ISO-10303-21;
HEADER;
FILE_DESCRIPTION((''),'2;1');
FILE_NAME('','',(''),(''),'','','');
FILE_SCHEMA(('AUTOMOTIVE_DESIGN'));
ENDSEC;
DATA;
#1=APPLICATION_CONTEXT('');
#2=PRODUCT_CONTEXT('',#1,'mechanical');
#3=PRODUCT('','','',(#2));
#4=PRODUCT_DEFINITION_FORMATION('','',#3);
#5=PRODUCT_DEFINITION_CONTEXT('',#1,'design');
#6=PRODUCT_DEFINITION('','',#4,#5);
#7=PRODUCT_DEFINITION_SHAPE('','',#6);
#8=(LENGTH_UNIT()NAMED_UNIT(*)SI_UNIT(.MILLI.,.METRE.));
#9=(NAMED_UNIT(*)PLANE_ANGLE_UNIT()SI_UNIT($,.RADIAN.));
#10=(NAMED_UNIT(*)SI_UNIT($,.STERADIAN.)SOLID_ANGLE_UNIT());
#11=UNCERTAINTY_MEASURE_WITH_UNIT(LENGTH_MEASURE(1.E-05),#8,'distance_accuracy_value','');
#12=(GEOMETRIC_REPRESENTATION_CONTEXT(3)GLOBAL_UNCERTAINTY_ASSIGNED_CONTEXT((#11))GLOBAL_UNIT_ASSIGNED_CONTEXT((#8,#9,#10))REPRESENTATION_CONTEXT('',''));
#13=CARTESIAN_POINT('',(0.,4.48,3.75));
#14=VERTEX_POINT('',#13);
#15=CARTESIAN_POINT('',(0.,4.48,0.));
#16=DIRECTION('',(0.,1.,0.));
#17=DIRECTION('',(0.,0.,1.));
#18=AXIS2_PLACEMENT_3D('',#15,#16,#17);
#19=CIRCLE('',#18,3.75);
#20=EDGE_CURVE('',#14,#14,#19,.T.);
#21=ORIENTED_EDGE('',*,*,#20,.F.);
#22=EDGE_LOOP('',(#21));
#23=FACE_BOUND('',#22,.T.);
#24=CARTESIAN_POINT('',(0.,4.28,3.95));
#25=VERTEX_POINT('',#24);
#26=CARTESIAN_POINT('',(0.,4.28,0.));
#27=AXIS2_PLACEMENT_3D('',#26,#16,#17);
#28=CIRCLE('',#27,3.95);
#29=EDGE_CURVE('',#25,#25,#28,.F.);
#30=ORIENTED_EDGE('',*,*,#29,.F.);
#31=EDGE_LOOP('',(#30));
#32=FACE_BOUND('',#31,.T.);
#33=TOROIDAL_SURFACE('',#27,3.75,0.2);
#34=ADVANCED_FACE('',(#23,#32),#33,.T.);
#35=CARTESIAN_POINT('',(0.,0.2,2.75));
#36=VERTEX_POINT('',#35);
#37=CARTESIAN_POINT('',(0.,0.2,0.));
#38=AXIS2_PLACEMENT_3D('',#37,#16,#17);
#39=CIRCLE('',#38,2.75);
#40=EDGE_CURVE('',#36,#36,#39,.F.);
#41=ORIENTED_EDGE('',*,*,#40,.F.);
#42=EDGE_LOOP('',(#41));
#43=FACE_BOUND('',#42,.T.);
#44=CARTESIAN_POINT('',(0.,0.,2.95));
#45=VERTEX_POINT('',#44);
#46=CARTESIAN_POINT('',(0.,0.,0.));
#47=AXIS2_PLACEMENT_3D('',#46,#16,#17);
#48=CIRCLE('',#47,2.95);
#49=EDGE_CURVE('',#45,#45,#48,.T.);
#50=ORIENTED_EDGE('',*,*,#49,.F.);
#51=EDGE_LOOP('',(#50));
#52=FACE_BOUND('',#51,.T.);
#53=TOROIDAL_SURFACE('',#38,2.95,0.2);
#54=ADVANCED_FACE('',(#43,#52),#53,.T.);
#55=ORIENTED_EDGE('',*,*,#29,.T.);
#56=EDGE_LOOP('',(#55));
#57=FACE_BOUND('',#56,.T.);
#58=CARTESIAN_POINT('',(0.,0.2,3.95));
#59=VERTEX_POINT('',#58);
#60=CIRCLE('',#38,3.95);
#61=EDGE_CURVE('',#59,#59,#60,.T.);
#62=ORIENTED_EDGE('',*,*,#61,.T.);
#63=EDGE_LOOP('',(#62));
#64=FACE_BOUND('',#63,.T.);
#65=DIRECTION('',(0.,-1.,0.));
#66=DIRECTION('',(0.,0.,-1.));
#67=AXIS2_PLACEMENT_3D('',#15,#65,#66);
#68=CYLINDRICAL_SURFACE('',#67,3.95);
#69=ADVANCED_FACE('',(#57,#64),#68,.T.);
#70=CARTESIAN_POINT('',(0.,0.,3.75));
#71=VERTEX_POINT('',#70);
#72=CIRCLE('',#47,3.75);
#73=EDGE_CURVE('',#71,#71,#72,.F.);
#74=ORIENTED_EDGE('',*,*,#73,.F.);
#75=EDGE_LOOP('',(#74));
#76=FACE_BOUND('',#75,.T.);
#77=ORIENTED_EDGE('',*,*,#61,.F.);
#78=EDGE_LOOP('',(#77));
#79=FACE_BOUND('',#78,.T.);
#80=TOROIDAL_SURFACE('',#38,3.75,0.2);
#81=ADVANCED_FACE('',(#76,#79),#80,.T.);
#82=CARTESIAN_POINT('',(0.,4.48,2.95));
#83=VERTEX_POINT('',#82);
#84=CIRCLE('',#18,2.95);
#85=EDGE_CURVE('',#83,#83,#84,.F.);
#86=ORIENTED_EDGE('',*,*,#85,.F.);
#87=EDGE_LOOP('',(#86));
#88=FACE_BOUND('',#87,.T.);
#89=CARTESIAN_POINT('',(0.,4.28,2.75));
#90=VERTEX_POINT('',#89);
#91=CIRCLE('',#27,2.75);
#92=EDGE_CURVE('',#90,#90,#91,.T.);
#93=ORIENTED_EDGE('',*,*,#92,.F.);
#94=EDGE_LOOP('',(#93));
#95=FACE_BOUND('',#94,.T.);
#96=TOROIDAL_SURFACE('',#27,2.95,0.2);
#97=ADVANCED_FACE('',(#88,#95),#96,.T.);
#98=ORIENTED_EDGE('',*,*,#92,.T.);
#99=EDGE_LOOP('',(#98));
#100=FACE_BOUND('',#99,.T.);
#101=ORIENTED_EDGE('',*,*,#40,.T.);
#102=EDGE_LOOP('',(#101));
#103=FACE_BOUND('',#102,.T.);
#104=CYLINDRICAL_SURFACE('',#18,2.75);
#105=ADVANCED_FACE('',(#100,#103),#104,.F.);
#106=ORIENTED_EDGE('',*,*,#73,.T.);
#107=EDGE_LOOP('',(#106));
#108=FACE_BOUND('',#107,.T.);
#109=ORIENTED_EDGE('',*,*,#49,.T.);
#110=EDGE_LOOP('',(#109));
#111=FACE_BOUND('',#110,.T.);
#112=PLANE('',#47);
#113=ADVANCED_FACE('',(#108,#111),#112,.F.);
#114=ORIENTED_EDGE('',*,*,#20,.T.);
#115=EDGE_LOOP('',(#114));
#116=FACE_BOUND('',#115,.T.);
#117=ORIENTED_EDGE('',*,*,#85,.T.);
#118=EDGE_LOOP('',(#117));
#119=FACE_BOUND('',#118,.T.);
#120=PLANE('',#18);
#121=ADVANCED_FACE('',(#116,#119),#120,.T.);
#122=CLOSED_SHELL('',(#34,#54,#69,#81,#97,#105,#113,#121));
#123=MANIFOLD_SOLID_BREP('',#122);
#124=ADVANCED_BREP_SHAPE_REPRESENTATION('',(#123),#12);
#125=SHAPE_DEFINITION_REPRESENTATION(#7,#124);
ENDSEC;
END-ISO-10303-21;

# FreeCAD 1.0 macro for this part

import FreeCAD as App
import Part
import Sketcher
from FreeCAD import Vector
Q = App.Units.Quantity


def edges_at(feature, points):
    """Names of the edges that pass closest to the given points."""
    edges = feature.Shape.Edges
    near = lambda p: min(range(len(edges)), key=lambda i: edges[i].distToShape(Part.Vertex(*p))[0])
    return sorted({f"Edge{near(p) + 1}" for p in points})

doc = App.newDocument("Part")
body = doc.addObject("PartDesign::Body", "Body")

sketch1 = body.newObject("Sketcher::SketchObject", "Sketch")
sketch1.AttachmentSupport = (doc.getObject("XZ_Plane"), [""])
sketch1.MapMode = "FlatFace"
sketch1.addGeometry(Part.Circle(Vector(0, 0, 0), Vector(0, 0, 1), 4), False)
sketch1.addConstraint(Sketcher.Constraint("Coincident", 0, 3, -1, 1))
sketch1.addConstraint(Sketcher.Constraint("Diameter", 0, Q("7.9 mm")))
pad1 = body.newObject("PartDesign::Pad", "Pad")
pad1.Profile = sketch1
pad1.Length = 4.48
pad1.Reversed = True

sketch2 = body.newObject("Sketcher::SketchObject", "Sketch001")
sketch2.AttachmentSupport = (doc.getObject("XZ_Plane"), [""])
sketch2.MapMode = "FlatFace"
sketch2.AttachmentOffset = App.Placement(Vector(0, 0, -4.48), App.Rotation())
sketch2.addGeometry(Part.Circle(Vector(0, 0, 0), Vector(0, 0, 1), 2.8), False)
sketch2.addConstraint(Sketcher.Constraint("Coincident", 0, 3, -1, 1))
sketch2.addConstraint(Sketcher.Constraint("Diameter", 0, Q("5.5 mm")))
doc.recompute()
hole = body.newObject("PartDesign::Hole", "Hole")
hole.Profile = sketch2
hole.ThreadType = "None"
hole.Diameter = 5.5
hole.DepthType = "Dimension"
hole.Depth = 4.48
hole.DrillPoint = "Angled"
hole.DrillPointAngle = 118
hole.Reversed = True
doc.recompute()

fillet = body.newObject("PartDesign::Fillet", "Fillet")
fillet.Base = (hole, edges_at(hole, [
    (0, 0, -3.95),
    (0, 4.48, -3.95),
    (2.75, 4.48, 0),
    (2.75, 0, 0),
]))
fillet.Radius = 0.2

doc.recompute()
